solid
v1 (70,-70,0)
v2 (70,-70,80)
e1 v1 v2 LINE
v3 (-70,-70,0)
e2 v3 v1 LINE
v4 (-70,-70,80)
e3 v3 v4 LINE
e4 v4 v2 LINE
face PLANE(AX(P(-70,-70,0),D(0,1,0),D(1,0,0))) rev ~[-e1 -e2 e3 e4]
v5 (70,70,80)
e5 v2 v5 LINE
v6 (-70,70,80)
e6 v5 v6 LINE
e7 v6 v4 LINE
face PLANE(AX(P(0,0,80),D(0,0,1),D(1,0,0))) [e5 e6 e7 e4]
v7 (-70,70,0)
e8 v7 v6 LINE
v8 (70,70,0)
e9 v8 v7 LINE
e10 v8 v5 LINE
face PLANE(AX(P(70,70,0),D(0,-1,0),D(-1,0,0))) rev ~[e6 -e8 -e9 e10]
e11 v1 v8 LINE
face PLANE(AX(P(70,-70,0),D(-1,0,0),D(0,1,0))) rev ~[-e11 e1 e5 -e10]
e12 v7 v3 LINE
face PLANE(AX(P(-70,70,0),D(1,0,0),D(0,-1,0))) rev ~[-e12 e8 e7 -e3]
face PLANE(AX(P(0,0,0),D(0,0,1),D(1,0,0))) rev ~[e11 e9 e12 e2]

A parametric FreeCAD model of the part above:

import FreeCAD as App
import Part
import Sketcher

V = App.Vector
Q = App.Units.Quantity

doc = App.newDocument("Part")
body = doc.addObject("PartDesign::Body", "Body")

# Sketch on XY plane
sketch1 = body.newObject("Sketcher::SketchObject", "Sketch")
sketch1.AttachmentSupport = (doc.getObject("XY_Plane"), [""])
sketch1.MapMode = "FlatFace"
sketch1.addGeometry([
    Part.LineSegment(V(-70, 70, 0), V(-70, -70, 0)),
    Part.LineSegment(V(-70, -70, 0), V(70, -70, 0)),
    Part.LineSegment(V(70, -70, 0), V(70, 70, 0)),
    Part.LineSegment(V(70, 70, 0), V(-70, 70, 0)),
], False)
sketch1.addConstraint([
    Sketcher.Constraint("Coincident", 0, 2, 1, 1),
    Sketcher.Constraint("Coincident", 1, 2, 2, 1),
    Sketcher.Constraint("Coincident", 2, 2, 3, 1),
    Sketcher.Constraint("Coincident", 3, 2, 0, 1),
    Sketcher.Constraint("Vertical", 0),
    Sketcher.Constraint("Horizontal", 1),
    Sketcher.Constraint("Vertical", 2),
    Sketcher.Constraint("Horizontal", 3),
    Sketcher.Constraint("Symmetric", 0, 2, 2, 2, -1, 1),
    Sketcher.Constraint("Equal", 3, 0),
    Sketcher.Constraint("DistanceX", 0, 2, -1, 1, Q("70 mm")),
])
pad1 = body.newObject("PartDesign::Pad", "Pad")
pad1.Profile = sketch1
pad1.Length = 80

doc.recompute()
